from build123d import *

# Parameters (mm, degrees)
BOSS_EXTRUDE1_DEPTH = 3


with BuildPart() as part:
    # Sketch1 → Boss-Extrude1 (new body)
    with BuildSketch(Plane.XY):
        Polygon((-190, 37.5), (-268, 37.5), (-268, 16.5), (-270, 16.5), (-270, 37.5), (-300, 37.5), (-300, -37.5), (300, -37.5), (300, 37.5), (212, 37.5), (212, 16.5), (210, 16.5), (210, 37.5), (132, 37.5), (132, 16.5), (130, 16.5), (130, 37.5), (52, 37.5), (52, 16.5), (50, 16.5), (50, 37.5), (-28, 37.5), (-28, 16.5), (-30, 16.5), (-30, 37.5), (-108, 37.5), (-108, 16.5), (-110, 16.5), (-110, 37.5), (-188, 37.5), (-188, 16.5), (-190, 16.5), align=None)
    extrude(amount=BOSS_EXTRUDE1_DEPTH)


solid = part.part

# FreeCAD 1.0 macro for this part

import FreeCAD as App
import Part
import Sketcher

V = App.Vector


def add_polygon(sketch, points):
    """Adds a closed chain of lines whose ends are joined by coincident constraints."""
    first, n = sketch.GeometryCount, len(points)
    for a, b in zip(points, points[1:] + points[:1]):
        sketch.addGeometry(Part.LineSegment(App.Vector(*a, 0), App.Vector(*b, 0)), False)
    for i in range(n):
        sketch.addConstraint(Sketcher.Constraint("Coincident", first + i, 2, first + (i + 1) % n, 1))

doc = App.newDocument("Part")
params = doc.addObject("Spreadsheet::Sheet", "Params")
for row, (alias, value) in enumerate([
    ("sketch1_width", "78 mm"),
    ("sketch1_width2", "2 mm"),
    ("sketch1_width3", "30 mm"),
    ("sketch1_width4", "600 mm"),
    ("sketch1_height", "21 mm"),
    ("pad1_length", "3 mm"),
], start=1):
    params.set(f"A{row}", alias)
    params.set(f"B{row}", "=" + value)
    params.setAlias(f"B{row}", alias)

body = doc.addObject("PartDesign::Body", "Body")

# Sketch on XY plane
sketch1 = doc.addObject("Sketcher::SketchObject", "Sketch")
body.addObject(sketch1)
sketch1.AttachmentSupport = (doc.XY_Plane, [""])
sketch1.MapMode = "FlatFace"
add_polygon(sketch1, [(-190, 37.5), (-268, 37.5), (-268, 16.5), (-270, 16.5), (-270, 37.5), (-300, 37.5), (-300, -37.5), (300, -37.5), (300, 37.5), (212, 37.5), (212, 16.5), (210, 16.5), (210, 37.5), (132, 37.5), (132, 16.5), (130, 16.5), (130, 37.5), (52, 37.5), (52, 16.5), (50, 16.5), (50, 37.5), (-28, 37.5), (-28, 16.5), (-30, 16.5), (-30, 37.5), (-108, 37.5), (-108, 16.5), (-110, 16.5), (-110, 37.5), (-188, 37.5), (-188, 16.5), (-190, 16.5)])  # lines 0-31
sketch1.addConstraint(Sketcher.Constraint("Horizontal", 0))
sketch1.addConstraint(Sketcher.Constraint("Vertical", 1))
sketch1.addConstraint(Sketcher.Constraint("Horizontal", 2))
sketch1.addConstraint(Sketcher.Constraint("Vertical", 3))
sketch1.addConstraint(Sketcher.Constraint("Horizontal", 4))
sketch1.addConstraint(Sketcher.Constraint("Vertical", 5))
sketch1.addConstraint(Sketcher.Constraint("Horizontal", 6))
sketch1.addConstraint(Sketcher.Constraint("Vertical", 7))
sketch1.addConstraint(Sketcher.Constraint("Horizontal", 8))
sketch1.addConstraint(Sketcher.Constraint("Vertical", 9))
sketch1.addConstraint(Sketcher.Constraint("Horizontal", 10))
sketch1.addConstraint(Sketcher.Constraint("Vertical", 11))
sketch1.addConstraint(Sketcher.Constraint("Horizontal", 12))
sketch1.addConstraint(Sketcher.Constraint("Vertical", 13))
sketch1.addConstraint(Sketcher.Constraint("Horizontal", 14))
sketch1.addConstraint(Sketcher.Constraint("Vertical", 15))
sketch1.addConstraint(Sketcher.Constraint("Horizontal", 16))
sketch1.addConstraint(Sketcher.Constraint("Vertical", 17))
sketch1.addConstraint(Sketcher.Constraint("Horizontal", 18))
sketch1.addConstraint(Sketcher.Constraint("Vertical", 19))
sketch1.addConstraint(Sketcher.Constraint("Horizontal", 20))
sketch1.addConstraint(Sketcher.Constraint("Vertical", 21))
sketch1.addConstraint(Sketcher.Constraint("Horizontal", 22))
sketch1.addConstraint(Sketcher.Constraint("Vertical", 23))
sketch1.addConstraint(Sketcher.Constraint("Horizontal", 24))
sketch1.addConstraint(Sketcher.Constraint("Vertical", 25))
sketch1.addConstraint(Sketcher.Constraint("Horizontal", 26))
sketch1.addConstraint(Sketcher.Constraint("Vertical", 27))
sketch1.addConstraint(Sketcher.Constraint("Horizontal", 28))
sketch1.addConstraint(Sketcher.Constraint("Vertical", 29))
sketch1.addConstraint(Sketcher.Constraint("Horizontal", 30))
sketch1.addConstraint(Sketcher.Constraint("Vertical", 31))
sketch1.addConstraint(Sketcher.Constraint("Symmetric", 4, 2, 6, 2, -1, 1))
sketch1.addConstraint(Sketcher.Constraint("Horizontal", 0, 2, 3, 2))
sketch1.addConstraint(Sketcher.Constraint("Horizontal", 4, 2, 7, 2))
sketch1.addConstraint(Sketcher.Constraint("Horizontal", 2, 2, 9, 2))
sketch1.addConstraint(Sketcher.Constraint("Horizontal", 8, 2, 11, 2))
sketch1.addConstraint(Sketcher.Constraint("Horizontal", 10, 2, 13, 2))
sketch1.addConstraint(Sketcher.Constraint("Horizontal", 12, 2, 15, 2))
sketch1.addConstraint(Sketcher.Constraint("Horizontal", 14, 2, 17, 2))
sketch1.addConstraint(Sketcher.Constraint("Horizontal", 16, 2, 19, 2))
sketch1.addConstraint(Sketcher.Constraint("Horizontal", 18, 2, 21, 2))
sketch1.addConstraint(Sketcher.Constraint("Horizontal", 20, 2, 23, 2))
sketch1.addConstraint(Sketcher.Constraint("Horizontal", 22, 2, 25, 2))
sketch1.addConstraint(Sketcher.Constraint("Horizontal", 24, 2, 27, 2))
sketch1.addConstraint(Sketcher.Constraint("Horizontal", 26, 2, 29, 2))
sketch1.addConstraint(Sketcher.Constraint("Equal", 2, 10))
sketch1.addConstraint(Sketcher.Constraint("Equal", 0, 12))
sketch1.addConstraint(Sketcher.Constraint("Equal", 10, 14))
sketch1.addConstraint(Sketcher.Constraint("Equal", 12, 16))
sketch1.addConstraint(Sketcher.Constraint("Equal", 14, 18))
sketch1.addConstraint(Sketcher.Constraint("Equal", 16, 20))
sketch1.addConstraint(Sketcher.Constraint("Equal", 18, 22))
sketch1.addConstraint(Sketcher.Constraint("Equal", 20, 24))
sketch1.addConstraint(Sketcher.Constraint("Equal", 22, 26))
sketch1.addConstraint(Sketcher.Constraint("Equal", 24, 28))
sketch1.addConstraint(Sketcher.Constraint("Equal", 26, 30))
sketch1.addConstraint(Sketcher.Constraint("DistanceX", 0, 2, 0, 1, 78.0))
sketch1.addConstraint(Sketcher.Constraint("DistanceX", 2, 2, 2, 1, 2.0))
sketch1.addConstraint(Sketcher.Constraint("DistanceX", 4, 2, 4, 1, 30.0))
sketch1.addConstraint(Sketcher.Constraint("DistanceX", 6, 1, 6, 2, 600.0))
sketch1.addConstraint(Sketcher.Constraint("DistanceY", 1, 2, 1, 1, 21.0))
sketch1.addConstraint(Sketcher.Constraint("DistanceY", 5, 2, 5, 1, 75.0))
sketch1.setExpression("Constraints[89]", "Params.sketch1_width")
sketch1.setExpression("Constraints[90]", "Params.sketch1_width2")
sketch1.setExpression("Constraints[91]", "Params.sketch1_width3")
sketch1.setExpression("Constraints[92]", "Params.sketch1_width4")
sketch1.setExpression("Constraints[93]", "Params.sketch1_height")
pad1 = doc.addObject("PartDesign::Pad", "Pad")
body.addObject(pad1)
pad1.Profile = sketch1
pad1.setExpression("Length", "Params.pad1_length")

doc.recompute()
